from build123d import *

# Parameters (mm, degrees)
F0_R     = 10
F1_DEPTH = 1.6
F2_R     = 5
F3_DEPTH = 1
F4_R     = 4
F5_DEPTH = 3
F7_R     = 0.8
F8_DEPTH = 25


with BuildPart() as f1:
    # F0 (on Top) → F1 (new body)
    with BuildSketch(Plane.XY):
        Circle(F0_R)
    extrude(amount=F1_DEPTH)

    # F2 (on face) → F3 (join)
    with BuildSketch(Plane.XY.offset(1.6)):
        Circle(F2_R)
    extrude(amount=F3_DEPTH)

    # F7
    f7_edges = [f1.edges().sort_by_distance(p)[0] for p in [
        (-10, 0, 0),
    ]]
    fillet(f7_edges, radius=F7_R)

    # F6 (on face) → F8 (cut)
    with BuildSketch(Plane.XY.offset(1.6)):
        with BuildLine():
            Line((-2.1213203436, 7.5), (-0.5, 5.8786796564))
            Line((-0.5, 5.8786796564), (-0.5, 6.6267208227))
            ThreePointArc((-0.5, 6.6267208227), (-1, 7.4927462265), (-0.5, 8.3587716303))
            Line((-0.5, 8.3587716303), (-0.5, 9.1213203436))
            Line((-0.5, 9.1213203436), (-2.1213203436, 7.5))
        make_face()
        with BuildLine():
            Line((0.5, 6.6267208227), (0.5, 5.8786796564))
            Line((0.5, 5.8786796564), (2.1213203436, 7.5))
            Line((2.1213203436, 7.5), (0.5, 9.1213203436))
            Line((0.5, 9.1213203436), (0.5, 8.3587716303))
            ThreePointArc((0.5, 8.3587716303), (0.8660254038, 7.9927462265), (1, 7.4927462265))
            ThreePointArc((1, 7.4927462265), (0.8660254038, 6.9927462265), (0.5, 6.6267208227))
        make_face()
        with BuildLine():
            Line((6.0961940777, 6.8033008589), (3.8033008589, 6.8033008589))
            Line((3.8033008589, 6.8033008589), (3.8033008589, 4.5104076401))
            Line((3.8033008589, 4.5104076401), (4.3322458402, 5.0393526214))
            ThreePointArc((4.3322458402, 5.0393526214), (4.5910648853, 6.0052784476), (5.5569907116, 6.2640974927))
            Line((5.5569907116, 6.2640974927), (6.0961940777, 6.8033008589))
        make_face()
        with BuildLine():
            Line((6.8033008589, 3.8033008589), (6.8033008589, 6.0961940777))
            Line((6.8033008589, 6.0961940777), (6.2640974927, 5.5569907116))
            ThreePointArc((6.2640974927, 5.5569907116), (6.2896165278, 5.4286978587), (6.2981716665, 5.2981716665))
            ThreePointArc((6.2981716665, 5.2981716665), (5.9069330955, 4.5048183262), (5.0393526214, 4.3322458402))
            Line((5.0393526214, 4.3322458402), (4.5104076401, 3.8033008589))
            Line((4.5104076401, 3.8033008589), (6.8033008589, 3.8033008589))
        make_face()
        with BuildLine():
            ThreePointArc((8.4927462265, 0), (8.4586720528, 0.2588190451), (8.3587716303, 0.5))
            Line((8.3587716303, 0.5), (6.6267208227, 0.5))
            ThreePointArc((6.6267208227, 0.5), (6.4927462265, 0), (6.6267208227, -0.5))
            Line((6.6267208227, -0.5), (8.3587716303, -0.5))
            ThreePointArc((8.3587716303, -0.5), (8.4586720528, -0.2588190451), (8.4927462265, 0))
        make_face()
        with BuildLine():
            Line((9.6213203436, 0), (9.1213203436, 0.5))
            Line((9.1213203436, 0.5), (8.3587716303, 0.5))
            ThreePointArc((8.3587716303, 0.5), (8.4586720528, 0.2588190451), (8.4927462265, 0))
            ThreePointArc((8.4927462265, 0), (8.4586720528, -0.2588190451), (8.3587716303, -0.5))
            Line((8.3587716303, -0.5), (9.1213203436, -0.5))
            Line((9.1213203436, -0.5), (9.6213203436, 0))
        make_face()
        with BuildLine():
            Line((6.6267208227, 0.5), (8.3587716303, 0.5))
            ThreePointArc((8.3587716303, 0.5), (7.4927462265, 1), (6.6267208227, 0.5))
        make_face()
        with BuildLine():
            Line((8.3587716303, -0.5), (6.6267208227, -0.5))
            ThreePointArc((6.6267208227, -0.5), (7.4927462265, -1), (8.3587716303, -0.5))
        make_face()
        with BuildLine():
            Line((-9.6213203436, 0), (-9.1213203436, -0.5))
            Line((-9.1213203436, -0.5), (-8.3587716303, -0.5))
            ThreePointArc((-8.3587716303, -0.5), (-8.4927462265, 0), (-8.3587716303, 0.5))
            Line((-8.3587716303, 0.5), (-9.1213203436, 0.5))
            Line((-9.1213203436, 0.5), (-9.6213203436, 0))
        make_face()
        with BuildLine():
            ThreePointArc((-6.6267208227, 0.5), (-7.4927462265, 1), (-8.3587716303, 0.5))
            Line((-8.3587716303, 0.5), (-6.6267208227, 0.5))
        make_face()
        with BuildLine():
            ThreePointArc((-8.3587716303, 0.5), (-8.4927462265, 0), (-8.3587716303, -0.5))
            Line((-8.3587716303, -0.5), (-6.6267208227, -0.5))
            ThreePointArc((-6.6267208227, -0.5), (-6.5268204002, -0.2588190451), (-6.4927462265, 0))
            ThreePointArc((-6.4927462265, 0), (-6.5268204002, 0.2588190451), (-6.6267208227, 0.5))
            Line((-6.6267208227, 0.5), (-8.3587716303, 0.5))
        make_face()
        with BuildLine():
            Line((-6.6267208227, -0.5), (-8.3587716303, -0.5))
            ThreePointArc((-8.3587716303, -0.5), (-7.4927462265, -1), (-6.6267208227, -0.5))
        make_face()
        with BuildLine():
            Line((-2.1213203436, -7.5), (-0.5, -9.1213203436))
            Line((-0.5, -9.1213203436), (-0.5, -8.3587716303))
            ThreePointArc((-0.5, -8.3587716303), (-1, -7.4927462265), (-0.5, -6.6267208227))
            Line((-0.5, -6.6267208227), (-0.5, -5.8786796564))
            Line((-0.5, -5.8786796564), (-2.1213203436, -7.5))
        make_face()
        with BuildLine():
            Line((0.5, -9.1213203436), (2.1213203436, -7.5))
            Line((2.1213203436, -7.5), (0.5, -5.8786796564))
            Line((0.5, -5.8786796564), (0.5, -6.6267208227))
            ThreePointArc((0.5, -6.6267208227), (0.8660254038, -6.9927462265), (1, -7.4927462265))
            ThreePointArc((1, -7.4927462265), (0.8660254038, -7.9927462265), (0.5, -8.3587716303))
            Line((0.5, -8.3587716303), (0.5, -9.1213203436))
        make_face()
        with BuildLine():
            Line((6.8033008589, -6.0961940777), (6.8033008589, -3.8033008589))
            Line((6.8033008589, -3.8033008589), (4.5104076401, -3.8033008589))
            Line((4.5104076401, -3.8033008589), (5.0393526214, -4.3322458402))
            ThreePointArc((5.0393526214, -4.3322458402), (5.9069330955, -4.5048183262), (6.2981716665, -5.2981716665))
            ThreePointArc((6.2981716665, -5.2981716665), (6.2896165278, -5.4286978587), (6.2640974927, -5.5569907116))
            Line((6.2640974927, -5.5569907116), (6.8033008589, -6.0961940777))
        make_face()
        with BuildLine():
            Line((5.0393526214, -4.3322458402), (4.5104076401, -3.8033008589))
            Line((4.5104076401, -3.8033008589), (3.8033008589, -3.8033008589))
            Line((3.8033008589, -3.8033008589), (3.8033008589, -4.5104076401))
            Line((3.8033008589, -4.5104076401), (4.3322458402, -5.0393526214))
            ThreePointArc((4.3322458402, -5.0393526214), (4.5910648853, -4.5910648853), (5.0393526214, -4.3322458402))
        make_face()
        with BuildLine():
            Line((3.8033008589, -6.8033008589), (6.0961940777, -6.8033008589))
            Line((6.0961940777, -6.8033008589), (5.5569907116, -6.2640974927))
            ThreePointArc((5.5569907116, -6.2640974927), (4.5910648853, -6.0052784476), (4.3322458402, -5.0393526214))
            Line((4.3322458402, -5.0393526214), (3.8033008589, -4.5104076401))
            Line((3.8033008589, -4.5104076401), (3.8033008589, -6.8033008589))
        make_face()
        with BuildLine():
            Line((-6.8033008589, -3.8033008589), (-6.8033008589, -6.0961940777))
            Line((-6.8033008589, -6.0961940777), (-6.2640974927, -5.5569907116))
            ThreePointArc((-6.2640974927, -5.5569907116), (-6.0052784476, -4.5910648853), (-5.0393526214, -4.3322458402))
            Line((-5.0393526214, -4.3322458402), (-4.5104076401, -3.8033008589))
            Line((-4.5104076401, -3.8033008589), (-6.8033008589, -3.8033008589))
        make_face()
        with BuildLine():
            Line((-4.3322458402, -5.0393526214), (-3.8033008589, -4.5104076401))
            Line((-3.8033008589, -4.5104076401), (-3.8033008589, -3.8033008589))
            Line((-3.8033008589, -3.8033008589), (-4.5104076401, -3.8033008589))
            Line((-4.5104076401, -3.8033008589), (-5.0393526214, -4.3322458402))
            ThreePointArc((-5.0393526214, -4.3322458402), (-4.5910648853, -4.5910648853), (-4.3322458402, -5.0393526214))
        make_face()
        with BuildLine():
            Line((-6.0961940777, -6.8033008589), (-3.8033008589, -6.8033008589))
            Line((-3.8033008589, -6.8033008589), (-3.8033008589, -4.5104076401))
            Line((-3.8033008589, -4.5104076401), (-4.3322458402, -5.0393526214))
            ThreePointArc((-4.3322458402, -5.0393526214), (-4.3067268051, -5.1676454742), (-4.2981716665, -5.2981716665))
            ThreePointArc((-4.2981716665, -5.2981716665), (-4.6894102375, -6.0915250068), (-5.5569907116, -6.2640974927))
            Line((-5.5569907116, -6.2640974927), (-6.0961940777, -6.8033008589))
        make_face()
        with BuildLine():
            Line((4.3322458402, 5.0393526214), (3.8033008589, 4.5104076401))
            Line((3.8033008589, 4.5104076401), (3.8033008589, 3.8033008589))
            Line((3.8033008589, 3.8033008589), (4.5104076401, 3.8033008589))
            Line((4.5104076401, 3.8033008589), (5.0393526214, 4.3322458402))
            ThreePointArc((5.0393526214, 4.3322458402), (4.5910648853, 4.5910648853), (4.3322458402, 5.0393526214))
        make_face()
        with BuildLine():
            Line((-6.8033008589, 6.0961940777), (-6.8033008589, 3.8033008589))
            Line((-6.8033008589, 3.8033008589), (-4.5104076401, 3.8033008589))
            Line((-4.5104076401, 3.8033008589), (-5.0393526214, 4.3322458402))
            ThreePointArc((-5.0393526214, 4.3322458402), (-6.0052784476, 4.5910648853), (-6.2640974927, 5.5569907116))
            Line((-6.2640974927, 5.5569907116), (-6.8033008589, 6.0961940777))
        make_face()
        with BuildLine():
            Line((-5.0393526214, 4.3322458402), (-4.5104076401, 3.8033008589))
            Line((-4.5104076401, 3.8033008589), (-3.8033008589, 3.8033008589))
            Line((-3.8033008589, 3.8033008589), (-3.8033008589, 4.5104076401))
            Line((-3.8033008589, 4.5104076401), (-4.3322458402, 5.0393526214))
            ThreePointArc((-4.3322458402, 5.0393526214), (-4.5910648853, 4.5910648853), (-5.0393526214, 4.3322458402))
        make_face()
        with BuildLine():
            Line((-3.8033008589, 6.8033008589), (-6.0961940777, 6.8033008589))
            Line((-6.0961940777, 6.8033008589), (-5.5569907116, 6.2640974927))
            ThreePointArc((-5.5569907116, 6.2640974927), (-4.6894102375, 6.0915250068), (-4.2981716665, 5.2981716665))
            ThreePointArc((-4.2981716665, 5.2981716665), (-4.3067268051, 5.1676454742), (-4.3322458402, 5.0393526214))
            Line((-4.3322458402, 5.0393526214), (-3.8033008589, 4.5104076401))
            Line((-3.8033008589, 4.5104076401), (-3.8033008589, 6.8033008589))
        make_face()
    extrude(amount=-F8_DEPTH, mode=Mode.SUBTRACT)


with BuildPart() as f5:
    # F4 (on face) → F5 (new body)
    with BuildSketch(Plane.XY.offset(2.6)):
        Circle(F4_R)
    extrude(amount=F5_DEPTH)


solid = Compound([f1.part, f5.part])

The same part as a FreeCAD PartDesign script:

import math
import FreeCAD as App
import Part
import Sketcher
from FreeCAD import Vector


def edges_at(feature, points):
    """Names of the edges that pass closest to the given points."""
    edges = feature.Shape.Edges
    near = lambda p: min(range(len(edges)), key=lambda i: edges[i].distToShape(Part.Vertex(*p))[0])
    return sorted({f"Edge{near(p) + 1}" for p in points})

doc = App.newDocument("Part")
body = doc.addObject("PartDesign::Body", "Body")

# Sketch on XY plane
sketch1 = body.newObject("Sketcher::SketchObject", "Sketch")
sketch1.AttachmentSupport = (doc.getObject("XY_Plane"), [""])
sketch1.MapMode = "FlatFace"
sketch1.addGeometry(Part.Circle(Vector(0, 0, 0), Vector(0, 0, 1), 10), False)
sketch1.addConstraint([
    Sketcher.Constraint("Coincident", 0, 3, -1, 1),
    Sketcher.Constraint("Diameter", 0, 20.0),
])
pad1 = body.newObject("PartDesign::Pad", "Pad")
pad1.Profile = sketch1
pad1.Length = 1.6

# Sketch on XY plane
sketch2 = body.newObject("Sketcher::SketchObject", "Sketch001")
sketch2.AttachmentSupport = (doc.getObject("XY_Plane"), [""])
sketch2.MapMode = "FlatFace"
sketch2.AttachmentOffset = App.Placement(Vector(0, 0, 1.6), App.Rotation())
sketch2.addGeometry(Part.Circle(Vector(0, 0, 0), Vector(0, 0, 1), 5), False)
sketch2.addConstraint([
    Sketcher.Constraint("Coincident", 0, 3, -1, 1),
    Sketcher.Constraint("Diameter", 0, 10.0),
])
pad2 = body.newObject("PartDesign::Pad", "Pad001")
pad2.Profile = sketch2
pad2.Length = 1
doc.recompute()

fillet = body.newObject("PartDesign::Fillet", "Fillet")
fillet.Base = (pad2, edges_at(pad2, [(-10, 0, 0)]))
fillet.Radius = 0.8

# Sketch on XY plane
sketch3 = body.newObject("Sketcher::SketchObject", "Sketch002")
sketch3.AttachmentSupport = (doc.getObject("XY_Plane"), [""])
sketch3.MapMode = "FlatFace"
sketch3.AttachmentOffset = App.Placement(Vector(0, 0, 1.6), App.Rotation())
sketch3.addGeometry([
    Part.LineSegment(Vector(-2.12, 7.5, 0), Vector(-0.5, 5.88, 0)),  # 0
    Part.LineSegment(Vector(-0.5, 5.88, 0), Vector(-0.5, 6.63, 0)),  # 1
    Part.ArcOfCircle(Part.Circle(Vector(0, 7.49, 0), Vector(0, 0, 1), 1), math.radians(120), math.radians(240)),  # 2
    Part.LineSegment(Vector(-0.5, 8.36, 0), Vector(-0.5, 9.12, 0)),  # 3
    Part.LineSegment(Vector(-0.5, 9.12, 0), Vector(-2.12, 7.5, 0)),  # 4
    Part.LineSegment(Vector(0.5, 6.63, 0), Vector(0.5, 5.88, 0)),  # 5
    Part.LineSegment(Vector(0.5, 5.88, 0), Vector(2.12, 7.5, 0)),  # 6
    Part.LineSegment(Vector(2.12, 7.5, 0), Vector(0.5, 9.12, 0)),  # 7
    Part.LineSegment(Vector(0.5, 9.12, 0), Vector(0.5, 8.36, 0)),  # 8
    Part.ArcOfCircle(Part.Circle(Vector(0, 7.49, 0), Vector(0, 0, 1), 1), math.radians(0), math.radians(60)),  # 9
    Part.ArcOfCircle(Part.Circle(Vector(0, 7.49, 0), Vector(0, 0, 1), 1), math.radians(-60), math.radians(0)),  # 10
    Part.LineSegment(Vector(6.1, 6.8, 0), Vector(3.8, 6.8, 0)),  # 11
    Part.LineSegment(Vector(3.8, 6.8, 0), Vector(3.8, 3.8, 0)),  # 12
    Part.LineSegment(Vector(3.8, 3.8, 0), Vector(6.8, 3.8, 0)),  # 13
    Part.LineSegment(Vector(6.8, 3.8, 0), Vector(6.8, 6.1, 0)),  # 14
    Part.LineSegment(Vector(6.8, 6.1, 0), Vector(6.26, 5.56, 0)),  # 15
    Part.ArcOfCircle(Part.Circle(Vector(5.3, 5.3, 0), Vector(0, 0, 1), 1), math.radians(0), math.radians(15)),  # 16
    Part.ArcOfCircle(Part.Circle(Vector(5.3, 5.3, 0), Vector(0, 0, 1), 1), math.radians(-105), math.radians(0)),  # 17
    Part.ArcOfCircle(Part.Circle(Vector(5.3, 5.3, 0), Vector(0, 0, 1), 1), math.radians(-165), math.radians(-105)),  # 18
    Part.ArcOfCircle(Part.Circle(Vector(5.3, 5.3, 0), Vector(0, 0, 1), 1), math.radians(75), math.radians(195)),  # 19
    Part.LineSegment(Vector(5.56, 6.26, 0), Vector(6.1, 6.8, 0)),  # 20
    Part.ArcOfCircle(Part.Circle(Vector(7.49, 0, 0), Vector(0, 0, 1), 1), math.radians(150), math.radians(210)),  # 21
    Part.ArcOfCircle(Part.Circle(Vector(7.49, 0, 0), Vector(0, 0, 1), 1), math.radians(-150), math.radians(-30)),  # 22
    Part.LineSegment(Vector(8.36, -0.5, 0), Vector(9.12, -0.5, 0)),  # 23
    Part.LineSegment(Vector(9.12, -0.5, 0), Vector(9.62, 0, 0)),  # 24
    Part.LineSegment(Vector(9.62, 0, 0), Vector(9.12, 0.5, 0)),  # 25
    Part.LineSegment(Vector(9.12, 0.5, 0), Vector(8.36, 0.5, 0)),  # 26
    Part.ArcOfCircle(Part.Circle(Vector(7.49, 0, 0), Vector(0, 0, 1), 1), math.radians(30), math.radians(150)),  # 27
    Part.LineSegment(Vector(-9.62, 0, 0), Vector(-9.12, -0.5, 0)),  # 28
    Part.LineSegment(Vector(-9.12, -0.5, 0), Vector(-8.36, -0.5, 0)),  # 29
    Part.ArcOfCircle(Part.Circle(Vector(-7.49, 0, 0), Vector(0, 0, 1), 1), math.radians(-150), math.radians(-30)),  # 30
    Part.ArcOfCircle(Part.Circle(Vector(-7.49, 0, 0), Vector(0, 0, 1), 1), math.radians(-30), math.radians(0)),  # 31
    Part.ArcOfCircle(Part.Circle(Vector(-7.49, 0, 0), Vector(0, 0, 1), 1), math.radians(0), math.radians(30)),  # 32
    Part.ArcOfCircle(Part.Circle(Vector(-7.49, 0, 0), Vector(0, 0, 1), 1), math.radians(30), math.radians(150)),  # 33
    Part.LineSegment(Vector(-8.36, 0.5, 0), Vector(-9.12, 0.5, 0)),  # 34
    Part.LineSegment(Vector(-9.12, 0.5, 0), Vector(-9.62, 0, 0)),  # 35
    Part.LineSegment(Vector(-2.12, -7.5, 0), Vector(-0.5, -9.12, 0)),  # 36
    Part.LineSegment(Vector(-0.5, -9.12, 0), Vector(-0.5, -8.36, 0)),  # 37
    Part.ArcOfCircle(Part.Circle(Vector(0, -7.49, 0), Vector(0, 0, 1), 1), math.radians(120), math.radians(240)),  # 38
    Part.LineSegment(Vector(-0.5, -6.63, 0), Vector(-0.5, -5.88, 0)),  # 39
    Part.LineSegment(Vector(-0.5, -5.88, 0), Vector(-2.12, -7.5, 0)),  # 40
    Part.LineSegment(Vector(0.5, -9.12, 0), Vector(2.12, -7.5, 0)),  # 41
    Part.LineSegment(Vector(2.12, -7.5, 0), Vector(0.5, -5.88, 0)),  # 42
    Part.LineSegment(Vector(0.5, -5.88, 0), Vector(0.5, -6.63, 0)),  # 43
    Part.ArcOfCircle(Part.Circle(Vector(0, -7.49, 0), Vector(0, 0, 1), 1), math.radians(0), math.radians(60)),  # 44
    Part.ArcOfCircle(Part.Circle(Vector(0, -7.49, 0), Vector(0, 0, 1), 1), math.radians(-60), math.radians(0)),  # 45
    Part.LineSegment(Vector(0.5, -8.36, 0), Vector(0.5, -9.12, 0)),  # 46
    Part.LineSegment(Vector(6.8, -6.1, 0), Vector(6.8, -3.8, 0)),  # 47
    Part.LineSegment(Vector(6.8, -3.8, 0), Vector(3.8, -3.8, 0)),  # 48
    Part.LineSegment(Vector(3.8, -3.8, 0), Vector(3.8, -6.8, 0)),  # 49
    Part.LineSegment(Vector(3.8, -6.8, 0), Vector(6.1, -6.8, 0)),  # 50
    Part.LineSegment(Vector(6.1, -6.8, 0), Vector(5.56, -6.26, 0)),  # 51
    Part.ArcOfCircle(Part.Circle(Vector(5.3, -5.3, 0), Vector(0, 0, 1), 1), math.radians(165), math.radians(285)),  # 52
    Part.ArcOfCircle(Part.Circle(Vector(5.3, -5.3, 0), Vector(0, 0, 1), 1), math.radians(105), math.radians(165)),  # 53
    Part.ArcOfCircle(Part.Circle(Vector(5.3, -5.3, 0), Vector(0, 0, 1), 1), math.radians(0), math.radians(105)),  # 54
    Part.ArcOfCircle(Part.Circle(Vector(5.3, -5.3, 0), Vector(0, 0, 1), 1), math.radians(-15), math.radians(0)),  # 55
    Part.LineSegment(Vector(6.26, -5.56, 0), Vector(6.8, -6.1, 0)),  # 56
    Part.LineSegment(Vector(-6.8, -3.8, 0), Vector(-6.8, -6.1, 0)),  # 57
    Part.LineSegment(Vector(-6.8, -6.1, 0), Vector(-6.26, -5.56, 0)),  # 58
    Part.ArcOfCircle(Part.Circle(Vector(-5.3, -5.3, 0), Vector(0, 0, 1), 1), math.radians(75), math.radians(195)),  # 59
    Part.ArcOfCircle(Part.Circle(Vector(-5.3, -5.3, 0), Vector(0, 0, 1), 1), math.radians(15), math.radians(75)),  # 60
    Part.ArcOfCircle(Part.Circle(Vector(-5.3, -5.3, 0), Vector(0, 0, 1), 1), math.radians(0), math.radians(15)),  # 61
    Part.ArcOfCircle(Part.Circle(Vector(-5.3, -5.3, 0), Vector(0, 0, 1), 1), math.radians(-105), math.radians(0)),  # 62
    Part.LineSegment(Vector(-5.56, -6.26, 0), Vector(-6.1, -6.8, 0)),  # 63
    Part.LineSegment(Vector(-6.1, -6.8, 0), Vector(-3.8, -6.8, 0)),  # 64
    Part.LineSegment(Vector(-3.8, -6.8, 0), Vector(-3.8, -3.8, 0)),  # 65
    Part.LineSegment(Vector(-3.8, -3.8, 0), Vector(-6.8, -3.8, 0)),  # 66
    Part.LineSegment(Vector(-6.8, 6.1, 0), Vector(-6.8, 3.8, 0)),  # 67
    Part.LineSegment(Vector(-6.8, 3.8, 0), Vector(-3.8, 3.8, 0)),  # 68
    Part.LineSegment(Vector(-3.8, 3.8, 0), Vector(-3.8, 6.8, 0)),  # 69
    Part.LineSegment(Vector(-3.8, 6.8, 0), Vector(-6.1, 6.8, 0)),  # 70
    Part.LineSegment(Vector(-6.1, 6.8, 0), Vector(-5.56, 6.26, 0)),  # 71
    Part.ArcOfCircle(Part.Circle(Vector(-5.3, 5.3, 0), Vector(0, 0, 1), 1), math.radians(0), math.radians(105)),  # 72
    Part.ArcOfCircle(Part.Circle(Vector(-5.3, 5.3, 0), Vector(0, 0, 1), 1), math.radians(-15), math.radians(0)),  # 73
    Part.ArcOfCircle(Part.Circle(Vector(-5.3, 5.3, 0), Vector(0, 0, 1), 1), math.radians(-75), math.radians(-15)),  # 74
    Part.ArcOfCircle(Part.Circle(Vector(-5.3, 5.3, 0), Vector(0, 0, 1), 1), math.radians(165), math.radians(285)),  # 75
    Part.LineSegment(Vector(-6.26, 5.56, 0), Vector(-6.8, 6.1, 0)),  # 76
], False)
sketch3.addConstraint([
    Sketcher.Constraint("Coincident", 0, 2, 1, 1),
    Sketcher.Constraint("Coincident", 1, 2, 2, 2),
    Sketcher.Constraint("Coincident", 2, 1, 3, 1),
    Sketcher.Constraint("Coincident", 3, 2, 4, 1),
    Sketcher.Constraint("Coincident", 4, 2, 0, 1),
    Sketcher.Constraint("Coincident", 5, 2, 6, 1),
    Sketcher.Constraint("Coincident", 6, 2, 7, 1),
    Sketcher.Constraint("Coincident", 7, 2, 8, 1),
    Sketcher.Constraint("Coincident", 8, 2, 9, 2),
    Sketcher.Constraint("Tangent", 9, 1, 10, 2),
    Sketcher.Constraint("Coincident", 10, 1, 5, 1),
    Sketcher.Constraint("Coincident", 11, 2, 12, 1),
    Sketcher.Constraint("Coincident", 12, 2, 13, 1),
    Sketcher.Constraint("Coincident", 13, 2, 14, 1),
    Sketcher.Constraint("Coincident", 14, 2, 15, 1),
    Sketcher.Constraint("Coincident", 15, 2, 16, 2),
    Sketcher.Constraint("Tangent", 16, 1, 17, 2),
    Sketcher.Constraint("Tangent", 17, 1, 18, 2),
    Sketcher.Constraint("Tangent", 18, 1, 19, 2),
    Sketcher.Constraint("Coincident", 19, 1, 20, 1),
    Sketcher.Constraint("Coincident", 20, 2, 11, 1),
    Sketcher.Constraint("Tangent", 21, 2, 22, 1),
    Sketcher.Constraint("Coincident", 22, 2, 23, 1),
    Sketcher.Constraint("Coincident", 23, 2, 24, 1),
    Sketcher.Constraint("Coincident", 24, 2, 25, 1),
    Sketcher.Constraint("Coincident", 25, 2, 26, 1),
    Sketcher.Constraint("Coincident", 26, 2, 27, 1),
    Sketcher.Constraint("Tangent", 27, 2, 21, 1),
    Sketcher.Constraint("Coincident", 28, 2, 29, 1),
    Sketcher.Constraint("Coincident", 29, 2, 30, 1),
    Sketcher.Constraint("Tangent", 30, 2, 31, 1),
    Sketcher.Constraint("Tangent", 31, 2, 32, 1),
    Sketcher.Constraint("Tangent", 32, 2, 33, 1),
    Sketcher.Constraint("Coincident", 33, 2, 34, 1),
    Sketcher.Constraint("Coincident", 34, 2, 35, 1),
    Sketcher.Constraint("Coincident", 35, 2, 28, 1),
    Sketcher.Constraint("Coincident", 36, 2, 37, 1),
    Sketcher.Constraint("Coincident", 37, 2, 38, 2),
    Sketcher.Constraint("Coincident", 38, 1, 39, 1),
    Sketcher.Constraint("Coincident", 39, 2, 40, 1),
    Sketcher.Constraint("Coincident", 40, 2, 36, 1),
    Sketcher.Constraint("Coincident", 41, 2, 42, 1),
    Sketcher.Constraint("Coincident", 42, 2, 43, 1),
    Sketcher.Constraint("Coincident", 43, 2, 44, 2),
    Sketcher.Constraint("Tangent", 44, 1, 45, 2),
    Sketcher.Constraint("Coincident", 45, 1, 46, 1),
    Sketcher.Constraint("Coincident", 46, 2, 41, 1),
    Sketcher.Constraint("Coincident", 47, 2, 48, 1),
    Sketcher.Constraint("Coincident", 48, 2, 49, 1),
    Sketcher.Constraint("Coincident", 49, 2, 50, 1),
    Sketcher.Constraint("Coincident", 50, 2, 51, 1),
    Sketcher.Constraint("Coincident", 51, 2, 52, 2),
    Sketcher.Constraint("Tangent", 52, 1, 53, 2),
    Sketcher.Constraint("Tangent", 53, 1, 54, 2),
    Sketcher.Constraint("Tangent", 54, 1, 55, 2),
    Sketcher.Constraint("Coincident", 55, 1, 56, 1),
    Sketcher.Constraint("Coincident", 56, 2, 47, 1),
    Sketcher.Constraint("Coincident", 57, 2, 58, 1),
    Sketcher.Constraint("Coincident", 58, 2, 59, 2),
    Sketcher.Constraint("Tangent", 59, 1, 60, 2),
    Sketcher.Constraint("Tangent", 60, 1, 61, 2),
    Sketcher.Constraint("Tangent", 61, 1, 62, 2),
    Sketcher.Constraint("Coincident", 62, 1, 63, 1),
    Sketcher.Constraint("Coincident", 63, 2, 64, 1),
    Sketcher.Constraint("Coincident", 64, 2, 65, 1),
    Sketcher.Constraint("Coincident", 65, 2, 66, 1),
    Sketcher.Constraint("Coincident", 66, 2, 57, 1),
    Sketcher.Constraint("Coincident", 67, 2, 68, 1),
    Sketcher.Constraint("Coincident", 68, 2, 69, 1),
    Sketcher.Constraint("Coincident", 69, 2, 70, 1),
    Sketcher.Constraint("Coincident", 70, 2, 71, 1),
    Sketcher.Constraint("Coincident", 71, 2, 72, 2),
    Sketcher.Constraint("Tangent", 72, 1, 73, 2),
    Sketcher.Constraint("Tangent", 73, 1, 74, 2),
    Sketcher.Constraint("Tangent", 74, 1, 75, 2),
    Sketcher.Constraint("Coincident", 75, 1, 76, 1),
    Sketcher.Constraint("Coincident", 76, 2, 67, 1),
    Sketcher.Constraint("Vertical", 1),
    Sketcher.Constraint("Vertical", 3),
    Sketcher.Constraint("Vertical", 5),
    Sketcher.Constraint("Vertical", 8),
    Sketcher.Constraint("Horizontal", 11),
    Sketcher.Constraint("Vertical", 12),
    Sketcher.Constraint("Horizontal", 13),
    Sketcher.Constraint("Vertical", 14),
    Sketcher.Constraint("Horizontal", 23),
    Sketcher.Constraint("Horizontal", 26),
    Sketcher.Constraint("Horizontal", 29),
    Sketcher.Constraint("Horizontal", 34),
    Sketcher.Constraint("Vertical", 37),
    Sketcher.Constraint("Vertical", 39),
    Sketcher.Constraint("Vertical", 43),
    Sketcher.Constraint("Vertical", 46),
    Sketcher.Constraint("Vertical", 47),
    Sketcher.Constraint("Horizontal", 48),
    Sketcher.Constraint("Vertical", 49),
    Sketcher.Constraint("Horizontal", 50),
    Sketcher.Constraint("Vertical", 57),
    Sketcher.Constraint("Horizontal", 64),
    Sketcher.Constraint("Vertical", 65),
    Sketcher.Constraint("Horizontal", 66),
    Sketcher.Constraint("Vertical", 67),
    Sketcher.Constraint("Horizontal", 68),
    Sketcher.Constraint("Vertical", 69),
    Sketcher.Constraint("Horizontal", 70),
    Sketcher.Constraint("Coincident", 9, 3, 2, 3),
    Sketcher.Constraint("Coincident", 18, 3, 16, 3),
    Sketcher.Constraint("Coincident", 32, 3, 30, 3),
    Sketcher.Constraint("Coincident", 44, 3, 38, 3),
    Sketcher.Constraint("Coincident", 54, 3, 52, 3),
    Sketcher.Constraint("Coincident", 61, 3, 59, 3),
    Sketcher.Constraint("Coincident", 74, 3, 72, 3),
    Sketcher.Constraint("Equal", 2, 9),
    Sketcher.Constraint("Equal", 9, 10),
    Sketcher.Constraint("Equal", 10, 16),
    Sketcher.Constraint("Equal", 18, 19),
    Sketcher.Constraint("Equal", 19, 21),
    Sketcher.Constraint("Equal", 21, 22),
    Sketcher.Constraint("Equal", 22, 27),
    Sketcher.Constraint("Equal", 27, 30),
    Sketcher.Constraint("Equal", 32, 33),
    Sketcher.Constraint("Equal", 33, 38),
    Sketcher.Constraint("Equal", 38, 44),
    Sketcher.Constraint("Equal", 44, 45),
    Sketcher.Constraint("Equal", 45, 52),
    Sketcher.Constraint("Equal", 54, 55),
    Sketcher.Constraint("Equal", 55, 59),
    Sketcher.Constraint("Equal", 61, 62),
    Sketcher.Constraint("Equal", 62, 72),
    Sketcher.Constraint("Equal", 74, 75),
    Sketcher.Constraint("Symmetric", 21, 3, 30, 3, -1, 1),
    Sketcher.Constraint("Symmetric", 2, 3, 38, 3, -1, 1),
    Sketcher.Constraint("Symmetric", 16, 3, 59, 3, -1, 1),
    Sketcher.Constraint("Symmetric", 52, 3, 72, 3, -1, 1),
    Sketcher.Constraint("Symmetric", 25, 2, 28, 2, -1, 1),
    Sketcher.Constraint("Symmetric", 23, 2, 34, 2, -1, 1),
    Sketcher.Constraint("Symmetric", 24, 2, 35, 2, -1, 1),
    Sketcher.Constraint("Symmetric", 7, 2, 36, 2, -1, 1),
    Sketcher.Constraint("Symmetric", 5, 2, 39, 2, -1, 1),
    Sketcher.Constraint("Symmetric", 6, 2, 40, 2, -1, 1),
    Sketcher.Constraint("Symmetric", 4, 2, 41, 2, -1, 1),
    Sketcher.Constraint("Symmetric", 0, 2, 42, 2, -1, 1),
    Sketcher.Constraint("Symmetric", 3, 2, 46, 2, -1, 1),
    Sketcher.Constraint("Symmetric", 14, 2, 57, 2, -1, 1),
    Sketcher.Constraint("Symmetric", 20, 2, 63, 2, -1, 1),
    Sketcher.Constraint("Symmetric", 12, 2, 65, 2, -1, 1),
    Sketcher.Constraint("Symmetric", 47, 2, 67, 2, -1, 1),
    Sketcher.Constraint("Symmetric", 49, 2, 69, 2, -1, 1),
    Sketcher.Constraint("Symmetric", 52, 3, 59, 3, -2),
    Sketcher.Constraint("Symmetric", 0, 2, 5, 2, -2),
    Sketcher.Constraint("Symmetric", 4, 2, 6, 2, -2),
    Sketcher.Constraint("Symmetric", 3, 2, 7, 2, -2),
    Sketcher.Constraint("Symmetric", 23, 2, 28, 2, -2),
    Sketcher.Constraint("Symmetric", 21, 2, 30, 2, -2),
    Sketcher.Constraint("Symmetric", 56, 2, 57, 2, -2),
    Sketcher.Constraint("Symmetric", 50, 2, 63, 2, -2),
    Sketcher.Constraint("Symmetric", 48, 2, 65, 2, -2),
    Sketcher.Constraint("Symmetric", 9, 1, 44, 1, -1),
    Sketcher.Constraint("PointOnObject", 24, 2, -1),
    Sketcher.Constraint("PointOnObject", 31, 2, -1),
    Sketcher.Constraint("Perpendicular", 0, 4),
    Sketcher.Constraint("Parallel", 4, 6),
    Sketcher.Constraint("Perpendicular", 7, 15),
    Sketcher.Constraint("Parallel", 15, 20),
    Sketcher.Constraint("Parallel", 20, 24),
    Sketcher.Constraint("Parallel", 42, 51),
    Sketcher.Constraint("Parallel", 51, 56),
    Sketcher.Constraint("Perpendicular", 56, 58),
    Sketcher.Constraint("Parallel", 58, 63),
    Sketcher.Constraint("Perpendicular", 63, 71),
    Sketcher.Constraint("Parallel", 71, 76),
    Sketcher.Constraint("Horizontal", 10, 3, 9, 1),
    Sketcher.Constraint("Horizontal", 75, 3, 16, 1),
    Sketcher.Constraint("Horizontal", 21, 2, 22, 2),
    Sketcher.Constraint("Horizontal", 26, 2, 27, 2),
    Sketcher.Constraint("Horizontal", 27, 2, 32, 2),
    Sketcher.Constraint("Horizontal", 62, 3, 54, 1),
    Sketcher.Constraint("Horizontal", 53, 1, 59, 1),
    Sketcher.Constraint("Horizontal", 52, 1, 60, 1),
    Sketcher.Constraint("Horizontal", 54, 1, 61, 1),
    Sketcher.Constraint("Horizontal", 19, 1, 71, 2),
    Sketcher.Constraint("Horizontal", 16, 1, 72, 1),
    Sketcher.Constraint("Horizontal", 18, 1, 73, 1),
    Sketcher.Constraint("Horizontal", 17, 1, 74, 1),
    Sketcher.Constraint("Horizontal", 15, 2, 75, 1),
    Sketcher.Constraint("Vertical", 1, 2, 2, 1),
    Sketcher.Constraint("Vertical", 18, 1, 52, 1),
    Sketcher.Constraint("Vertical", 17, 1, 53, 1),
    Sketcher.Constraint("Equal", 34, 3),
    Sketcher.Constraint("Equal", 68, 12),
    Sketcher.Constraint("Equal", 70, 14),
    Sketcher.Constraint("Equal", 15, 20),
    Sketcher.Constraint("Radius", 2, 1.0),
    Sketcher.Constraint("DistanceX", 13, 1, 13, 2, 3.0),
    Sketcher.Constraint("DistanceX", 0, 2, -1, 1, 0.5),
    Sketcher.Constraint("DistanceY", -1, 1, 4, 2, 7.5),
    Sketcher.Constraint("DistanceY", 21, 2, -1, 1, 0.5),
    Sketcher.Constraint("DistanceX", 23, 1, 23, 2, 0.762549),
    Sketcher.Constraint("DistanceY", 1, 1, 1, 2, 0.748041),
    Sketcher.Constraint("DistanceX", -1, 1, 11, 2, 3.803301),
    Sketcher.Constraint("DistanceY", -1, 1, 11, 2, 6.803301),
    Sketcher.Constraint("Distance", 15, 0.762549),
    Sketcher.Constraint("DistanceX", 11, 2, 11, 1, 2.292893),
    Sketcher.Constraint("DistanceX", -1, 1, 21, 2, 6.626721),
    Sketcher.Constraint("DistanceX", -1, 1, 17, 1, 5.039353),
    Sketcher.Constraint("DistanceX", -1, 1, 18, 1, 4.332246),
])
pocket1 = body.newObject("PartDesign::Pocket", "Pocket")
pocket1.Profile = sketch3
pocket1.Length = 25
body2 = doc.addObject("PartDesign::Body", "Body001")

# Sketch on XY plane
sketch4 = body2.newObject("Sketcher::SketchObject", "Sketch003")
sketch4.AttachmentSupport = (doc.getObject("XY_Plane001"), [""])
sketch4.MapMode = "FlatFace"
sketch4.AttachmentOffset = App.Placement(Vector(0, 0, 2.6), App.Rotation())
sketch4.addGeometry(Part.Circle(Vector(0, 0, 0), Vector(0, 0, 1), 4), False)
sketch4.addConstraint([
    Sketcher.Constraint("Coincident", 0, 3, -1, 1),
    Sketcher.Constraint("Diameter", 0, 8.0),
])
pad3 = body2.newObject("PartDesign::Pad", "Pad002")
pad3.Profile = sketch4
pad3.Length = 3

doc.recompute()
